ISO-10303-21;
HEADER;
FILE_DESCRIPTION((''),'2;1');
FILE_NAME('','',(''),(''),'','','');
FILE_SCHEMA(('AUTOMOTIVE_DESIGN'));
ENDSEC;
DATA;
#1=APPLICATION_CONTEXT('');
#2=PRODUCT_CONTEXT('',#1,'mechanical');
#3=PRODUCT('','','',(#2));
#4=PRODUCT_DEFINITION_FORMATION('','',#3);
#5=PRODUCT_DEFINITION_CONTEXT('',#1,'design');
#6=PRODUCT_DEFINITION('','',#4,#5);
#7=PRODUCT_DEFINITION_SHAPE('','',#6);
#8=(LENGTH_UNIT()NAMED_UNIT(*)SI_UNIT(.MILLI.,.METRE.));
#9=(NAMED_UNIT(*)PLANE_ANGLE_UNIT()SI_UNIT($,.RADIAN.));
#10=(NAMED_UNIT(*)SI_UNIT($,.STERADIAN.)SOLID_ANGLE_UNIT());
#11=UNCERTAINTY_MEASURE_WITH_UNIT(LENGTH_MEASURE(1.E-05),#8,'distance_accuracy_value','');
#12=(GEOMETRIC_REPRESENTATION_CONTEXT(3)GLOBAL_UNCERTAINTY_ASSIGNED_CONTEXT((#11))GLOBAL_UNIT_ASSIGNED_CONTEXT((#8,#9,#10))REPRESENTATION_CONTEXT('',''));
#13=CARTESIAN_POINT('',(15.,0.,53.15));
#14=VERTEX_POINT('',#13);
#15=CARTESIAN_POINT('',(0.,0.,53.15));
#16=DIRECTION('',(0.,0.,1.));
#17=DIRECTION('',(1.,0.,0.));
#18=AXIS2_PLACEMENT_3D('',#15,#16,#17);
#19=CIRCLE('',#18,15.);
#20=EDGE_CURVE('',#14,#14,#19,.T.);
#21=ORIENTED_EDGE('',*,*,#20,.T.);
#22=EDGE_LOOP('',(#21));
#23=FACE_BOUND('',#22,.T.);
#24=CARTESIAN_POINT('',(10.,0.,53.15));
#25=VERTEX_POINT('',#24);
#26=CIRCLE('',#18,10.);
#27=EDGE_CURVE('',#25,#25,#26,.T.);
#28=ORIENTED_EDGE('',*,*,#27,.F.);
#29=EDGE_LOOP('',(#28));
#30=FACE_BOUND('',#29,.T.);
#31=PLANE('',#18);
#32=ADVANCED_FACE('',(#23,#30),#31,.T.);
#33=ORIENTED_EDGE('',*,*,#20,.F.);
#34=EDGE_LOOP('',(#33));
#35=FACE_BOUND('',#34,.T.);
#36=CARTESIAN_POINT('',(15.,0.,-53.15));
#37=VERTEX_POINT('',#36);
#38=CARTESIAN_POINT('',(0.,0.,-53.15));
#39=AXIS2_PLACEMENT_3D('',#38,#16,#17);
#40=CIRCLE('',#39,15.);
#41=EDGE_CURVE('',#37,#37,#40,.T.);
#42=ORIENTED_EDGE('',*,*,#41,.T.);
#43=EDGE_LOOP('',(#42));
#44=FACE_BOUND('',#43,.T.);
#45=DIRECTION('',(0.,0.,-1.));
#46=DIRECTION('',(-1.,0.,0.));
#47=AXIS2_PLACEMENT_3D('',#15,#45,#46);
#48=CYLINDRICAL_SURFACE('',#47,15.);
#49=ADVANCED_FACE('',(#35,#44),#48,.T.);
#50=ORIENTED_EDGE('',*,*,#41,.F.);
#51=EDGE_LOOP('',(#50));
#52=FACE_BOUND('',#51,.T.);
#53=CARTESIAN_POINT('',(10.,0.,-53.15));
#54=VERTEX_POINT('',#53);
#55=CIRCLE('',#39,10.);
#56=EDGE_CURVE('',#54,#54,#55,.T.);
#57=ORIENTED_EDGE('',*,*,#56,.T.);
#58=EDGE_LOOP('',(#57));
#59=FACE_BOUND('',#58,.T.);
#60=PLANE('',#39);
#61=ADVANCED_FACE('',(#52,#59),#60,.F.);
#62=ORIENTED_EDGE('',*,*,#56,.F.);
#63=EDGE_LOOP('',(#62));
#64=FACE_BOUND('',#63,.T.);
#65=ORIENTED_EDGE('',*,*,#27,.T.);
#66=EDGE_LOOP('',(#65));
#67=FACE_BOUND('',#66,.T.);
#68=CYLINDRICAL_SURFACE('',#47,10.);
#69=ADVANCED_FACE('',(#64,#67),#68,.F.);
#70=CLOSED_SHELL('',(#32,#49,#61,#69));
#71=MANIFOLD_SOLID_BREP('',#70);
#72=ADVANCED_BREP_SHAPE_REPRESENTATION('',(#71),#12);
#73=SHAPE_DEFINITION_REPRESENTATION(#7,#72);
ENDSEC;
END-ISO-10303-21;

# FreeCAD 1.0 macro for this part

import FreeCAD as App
import Part
import Sketcher
from FreeCAD import Vector
Q = App.Units.Quantity

doc = App.newDocument("Part")
params = doc.addObject("Spreadsheet::Sheet", "Params")
for row, (alias, value) in enumerate([
    ("sketch1_diameter", "30 mm"),
    ("sketch1_diameter2", "20 mm"),
    ("pad1_length", "106.3 mm"),
], start=1):
    params.set(f"A{row}", alias)
    params.set(f"B{row}", "=" + value)
    params.setAlias(f"B{row}", alias)

body = doc.addObject("PartDesign::Body", "Body")

sketch1 = doc.addObject("Sketcher::SketchObject", "Sketch")
body.addObject(sketch1)
sketch1.AttachmentSupport = (doc.XY_Plane, [""])
sketch1.MapMode = "FlatFace"
sketch1.addGeometry([
    Part.Circle(Vector(0, 0, 0), Vector(0, 0, 1), 15),
    Part.Circle(Vector(0, 0, 0), Vector(0, 0, 1), 10),
], False)
sketch1.addConstraint([
    Sketcher.Constraint("Coincident", 0, 3, -1, 1),
    Sketcher.Constraint("Coincident", 1, 3, -1, 1),
    Sketcher.Constraint("Diameter", 0, Q("30 mm")),
    Sketcher.Constraint("Diameter", 1, Q("20 mm")),
])
sketch1.setExpression("Constraints[2]", "Params.sketch1_diameter")
sketch1.setExpression("Constraints[3]", "Params.sketch1_diameter2")
pad1 = doc.addObject("PartDesign::Pad", "Pad")
body.addObject(pad1)
pad1.Profile = sketch1
pad1.setExpression("Length", "Params.pad1_length")
pad1.Midplane = True

doc.recompute()
